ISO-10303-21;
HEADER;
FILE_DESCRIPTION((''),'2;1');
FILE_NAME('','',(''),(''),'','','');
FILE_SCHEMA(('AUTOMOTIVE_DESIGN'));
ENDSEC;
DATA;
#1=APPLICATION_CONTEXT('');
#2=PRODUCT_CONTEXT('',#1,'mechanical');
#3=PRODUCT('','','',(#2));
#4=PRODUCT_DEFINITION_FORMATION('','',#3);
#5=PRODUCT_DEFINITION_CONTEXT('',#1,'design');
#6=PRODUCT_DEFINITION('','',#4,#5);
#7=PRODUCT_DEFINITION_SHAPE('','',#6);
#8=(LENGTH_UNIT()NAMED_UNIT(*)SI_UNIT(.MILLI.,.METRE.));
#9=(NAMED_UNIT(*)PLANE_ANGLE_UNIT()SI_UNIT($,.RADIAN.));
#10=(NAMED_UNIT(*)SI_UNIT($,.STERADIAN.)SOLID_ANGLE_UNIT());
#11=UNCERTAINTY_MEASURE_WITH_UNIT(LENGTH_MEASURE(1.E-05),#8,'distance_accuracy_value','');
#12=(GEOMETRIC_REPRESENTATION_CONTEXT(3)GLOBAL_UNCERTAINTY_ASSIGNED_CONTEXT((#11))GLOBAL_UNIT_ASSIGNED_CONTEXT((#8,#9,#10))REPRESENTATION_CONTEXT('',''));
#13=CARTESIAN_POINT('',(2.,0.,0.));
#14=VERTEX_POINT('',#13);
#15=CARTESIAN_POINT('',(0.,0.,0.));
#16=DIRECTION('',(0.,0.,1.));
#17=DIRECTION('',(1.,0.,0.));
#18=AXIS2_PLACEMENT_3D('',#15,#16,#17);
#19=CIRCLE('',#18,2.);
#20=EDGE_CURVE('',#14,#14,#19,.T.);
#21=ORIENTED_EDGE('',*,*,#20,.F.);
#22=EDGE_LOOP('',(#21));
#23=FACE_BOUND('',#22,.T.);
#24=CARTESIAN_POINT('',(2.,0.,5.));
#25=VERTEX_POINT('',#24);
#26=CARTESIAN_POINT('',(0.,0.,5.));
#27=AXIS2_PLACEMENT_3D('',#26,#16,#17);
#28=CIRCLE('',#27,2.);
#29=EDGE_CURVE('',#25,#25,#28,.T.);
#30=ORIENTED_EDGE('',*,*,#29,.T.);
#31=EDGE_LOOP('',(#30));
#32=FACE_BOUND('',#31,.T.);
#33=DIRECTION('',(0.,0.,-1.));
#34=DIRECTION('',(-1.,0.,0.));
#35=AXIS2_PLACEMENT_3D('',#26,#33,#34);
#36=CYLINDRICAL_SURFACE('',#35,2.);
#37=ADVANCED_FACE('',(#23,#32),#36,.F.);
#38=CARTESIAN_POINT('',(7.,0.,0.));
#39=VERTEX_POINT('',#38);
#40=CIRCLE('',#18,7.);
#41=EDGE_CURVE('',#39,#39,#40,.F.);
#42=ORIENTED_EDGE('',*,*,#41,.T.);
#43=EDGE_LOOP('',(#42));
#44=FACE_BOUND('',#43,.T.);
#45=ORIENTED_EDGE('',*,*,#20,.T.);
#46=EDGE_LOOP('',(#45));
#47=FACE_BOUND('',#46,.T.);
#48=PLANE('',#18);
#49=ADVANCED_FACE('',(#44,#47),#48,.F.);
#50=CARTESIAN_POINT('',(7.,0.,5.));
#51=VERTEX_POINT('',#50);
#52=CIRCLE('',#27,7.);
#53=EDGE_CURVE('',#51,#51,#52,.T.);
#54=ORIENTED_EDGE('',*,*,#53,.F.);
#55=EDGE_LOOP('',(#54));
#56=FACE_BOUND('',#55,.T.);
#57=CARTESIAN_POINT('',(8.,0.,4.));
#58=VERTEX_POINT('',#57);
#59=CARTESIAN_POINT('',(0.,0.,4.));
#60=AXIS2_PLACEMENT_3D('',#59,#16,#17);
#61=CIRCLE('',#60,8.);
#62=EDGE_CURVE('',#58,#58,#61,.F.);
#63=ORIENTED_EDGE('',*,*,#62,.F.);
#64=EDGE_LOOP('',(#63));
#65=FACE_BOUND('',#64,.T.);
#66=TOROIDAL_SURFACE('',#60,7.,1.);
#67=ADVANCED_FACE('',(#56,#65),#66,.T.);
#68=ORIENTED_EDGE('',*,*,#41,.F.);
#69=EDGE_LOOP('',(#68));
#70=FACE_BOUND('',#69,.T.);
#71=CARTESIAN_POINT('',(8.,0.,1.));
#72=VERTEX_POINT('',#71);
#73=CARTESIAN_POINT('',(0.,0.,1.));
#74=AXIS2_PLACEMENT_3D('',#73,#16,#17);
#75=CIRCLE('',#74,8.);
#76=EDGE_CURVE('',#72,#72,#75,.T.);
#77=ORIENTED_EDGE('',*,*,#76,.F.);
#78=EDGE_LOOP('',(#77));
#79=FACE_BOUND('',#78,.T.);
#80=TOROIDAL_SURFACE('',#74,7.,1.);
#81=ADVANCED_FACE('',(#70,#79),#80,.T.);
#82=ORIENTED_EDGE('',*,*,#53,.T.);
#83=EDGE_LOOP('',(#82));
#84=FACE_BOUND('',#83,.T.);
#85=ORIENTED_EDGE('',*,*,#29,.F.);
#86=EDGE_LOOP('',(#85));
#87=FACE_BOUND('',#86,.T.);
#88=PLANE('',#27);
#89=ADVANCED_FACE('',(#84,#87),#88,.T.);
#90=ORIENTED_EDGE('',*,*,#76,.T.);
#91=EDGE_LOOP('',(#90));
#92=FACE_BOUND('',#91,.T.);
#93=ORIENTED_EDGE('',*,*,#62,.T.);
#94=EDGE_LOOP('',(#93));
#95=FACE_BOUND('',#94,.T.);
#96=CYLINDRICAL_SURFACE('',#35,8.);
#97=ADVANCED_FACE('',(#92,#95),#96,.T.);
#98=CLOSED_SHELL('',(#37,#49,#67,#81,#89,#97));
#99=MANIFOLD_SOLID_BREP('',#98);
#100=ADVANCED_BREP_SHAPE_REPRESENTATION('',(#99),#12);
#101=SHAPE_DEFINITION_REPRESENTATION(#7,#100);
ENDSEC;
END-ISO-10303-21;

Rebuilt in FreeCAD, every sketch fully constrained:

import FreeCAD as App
import Part
import Sketcher
from FreeCAD import Vector


def edges_at(feature, points):
    """Names of the edges that pass closest to the given points."""
    edges = feature.Shape.Edges
    near = lambda p: min(range(len(edges)), key=lambda i: edges[i].distToShape(Part.Vertex(*p))[0])
    return sorted({f"Edge{near(p) + 1}" for p in points})

doc = App.newDocument("Part")
body = doc.addObject("PartDesign::Body", "Body")

# Sketch on XY plane
sketch1 = doc.addObject("Sketcher::SketchObject", "Sketch")
body.addObject(sketch1)
sketch1.AttachmentSupport = (doc.XY_Plane, [""])
sketch1.MapMode = "FlatFace"
sketch1.addGeometry([
    Part.Circle(Vector(0, 0, 0), Vector(0, 0, 1), 8),
    Part.Circle(Vector(0, 0, 0), Vector(0, 0, 1), 2),
], False)
sketch1.addConstraint([
    Sketcher.Constraint("Coincident", 0, 3, -1, 1),
    Sketcher.Constraint("Coincident", 1, 3, -1, 1),
    Sketcher.Constraint("Diameter", 0, 16.0),
    Sketcher.Constraint("Diameter", 1, 4.0),
])
pad1 = doc.addObject("PartDesign::Pad", "Pad")
body.addObject(pad1)
pad1.Profile = sketch1
pad1.Length = 5
doc.recompute()

fillet = doc.addObject("PartDesign::Fillet", "Fillet")
body.addObject(fillet)
fillet.Base = (pad1, edges_at(pad1, [(-8, 0, 0), (-8, 0, 5)]))
fillet.Radius = 1

doc.recompute()
